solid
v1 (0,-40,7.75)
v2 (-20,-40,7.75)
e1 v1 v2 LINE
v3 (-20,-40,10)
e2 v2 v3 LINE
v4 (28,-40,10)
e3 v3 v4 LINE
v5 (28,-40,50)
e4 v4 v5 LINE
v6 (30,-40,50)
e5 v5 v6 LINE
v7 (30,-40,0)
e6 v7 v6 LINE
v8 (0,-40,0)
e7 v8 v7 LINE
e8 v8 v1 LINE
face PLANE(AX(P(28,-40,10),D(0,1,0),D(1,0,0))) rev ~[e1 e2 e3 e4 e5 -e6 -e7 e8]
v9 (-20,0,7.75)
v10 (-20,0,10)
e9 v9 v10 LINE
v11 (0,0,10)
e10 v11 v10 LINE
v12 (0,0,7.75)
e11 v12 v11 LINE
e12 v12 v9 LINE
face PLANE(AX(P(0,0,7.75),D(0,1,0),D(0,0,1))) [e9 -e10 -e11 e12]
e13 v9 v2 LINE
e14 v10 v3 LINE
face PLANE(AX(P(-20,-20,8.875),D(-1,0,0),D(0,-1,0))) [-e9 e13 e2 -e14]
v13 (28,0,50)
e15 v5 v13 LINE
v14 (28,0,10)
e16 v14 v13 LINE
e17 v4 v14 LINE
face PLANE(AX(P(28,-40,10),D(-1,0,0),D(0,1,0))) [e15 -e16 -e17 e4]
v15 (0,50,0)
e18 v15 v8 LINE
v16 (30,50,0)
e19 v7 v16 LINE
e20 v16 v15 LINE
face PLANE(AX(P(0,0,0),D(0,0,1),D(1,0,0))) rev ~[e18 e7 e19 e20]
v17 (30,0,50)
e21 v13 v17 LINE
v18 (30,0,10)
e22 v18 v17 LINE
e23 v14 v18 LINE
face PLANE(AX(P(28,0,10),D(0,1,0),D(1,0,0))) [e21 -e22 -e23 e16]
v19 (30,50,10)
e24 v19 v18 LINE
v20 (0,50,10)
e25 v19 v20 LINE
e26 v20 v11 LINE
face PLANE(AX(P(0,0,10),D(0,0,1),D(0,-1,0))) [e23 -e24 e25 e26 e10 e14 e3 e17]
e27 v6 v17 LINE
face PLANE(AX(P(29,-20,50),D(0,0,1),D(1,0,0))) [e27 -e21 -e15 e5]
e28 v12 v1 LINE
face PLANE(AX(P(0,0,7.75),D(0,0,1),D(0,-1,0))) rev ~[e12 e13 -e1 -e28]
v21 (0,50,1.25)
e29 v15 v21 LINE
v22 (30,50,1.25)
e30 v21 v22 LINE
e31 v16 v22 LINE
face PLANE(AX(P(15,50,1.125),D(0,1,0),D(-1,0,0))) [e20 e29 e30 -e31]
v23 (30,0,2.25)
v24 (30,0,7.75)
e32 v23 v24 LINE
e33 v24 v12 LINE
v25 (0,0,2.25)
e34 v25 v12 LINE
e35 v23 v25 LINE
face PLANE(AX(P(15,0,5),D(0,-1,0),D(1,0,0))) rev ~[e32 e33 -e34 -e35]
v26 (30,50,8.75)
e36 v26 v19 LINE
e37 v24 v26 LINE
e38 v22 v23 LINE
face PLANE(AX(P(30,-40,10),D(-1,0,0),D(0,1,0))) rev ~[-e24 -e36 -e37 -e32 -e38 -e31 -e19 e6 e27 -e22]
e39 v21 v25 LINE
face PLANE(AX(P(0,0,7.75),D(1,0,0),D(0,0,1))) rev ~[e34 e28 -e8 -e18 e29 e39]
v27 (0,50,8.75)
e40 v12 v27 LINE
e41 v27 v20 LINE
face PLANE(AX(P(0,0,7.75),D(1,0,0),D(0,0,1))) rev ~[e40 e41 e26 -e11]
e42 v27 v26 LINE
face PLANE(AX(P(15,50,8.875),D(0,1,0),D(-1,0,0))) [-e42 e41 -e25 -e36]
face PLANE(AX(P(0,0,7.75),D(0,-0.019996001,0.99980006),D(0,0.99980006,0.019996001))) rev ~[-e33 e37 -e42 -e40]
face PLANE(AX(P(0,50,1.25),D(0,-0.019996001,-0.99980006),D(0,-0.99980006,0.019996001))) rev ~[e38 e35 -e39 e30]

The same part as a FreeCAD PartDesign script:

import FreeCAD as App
import Part
import Sketcher
from FreeCAD import Vector


def add_polygon(sketch, points):
    """Adds a closed chain of lines whose ends are joined by coincident constraints."""
    first, n = sketch.GeometryCount, len(points)
    for a, b in zip(points, points[1:] + points[:1]):
        sketch.addGeometry(Part.LineSegment(App.Vector(*a, 0), App.Vector(*b, 0)), False)
    for i in range(n):
        sketch.addConstraint(Sketcher.Constraint("Coincident", first + i, 2, first + (i + 1) % n, 1))

doc = App.newDocument("Part")
params = doc.addObject("Spreadsheet::Sheet", "Params")
for row, (alias, value) in enumerate([
    ("sketch1_width", "30 mm"),
    ("sketch1_height", "10 mm"),
    ("pad1_length", "40 mm"),
    ("sketch2_width", "30 mm"),
    ("sketch2_height", "2.25 mm"),
    ("pad2_length", "50 mm"),
    ("sketch3_width", "50 mm"),
    ("sketch3_height", "1 mm"),
    ("sketch4_width", "40 mm"),
    ("sketch4_height", "2.25 mm"),
    ("pad3_length", "20 mm"),
    ("sketch5_width", "2 mm"),
    ("sketch5_height", "40 mm"),
    ("pad4_length", "40 mm"),
], start=1):
    params.set(f"A{row}", alias)
    params.set(f"B{row}", "=" + value)
    params.setAlias(f"B{row}", alias)

body = doc.addObject("PartDesign::Body", "Body")

# Sketch on XZ plane
sketch1 = body.newObject("Sketcher::SketchObject", "Sketch")
sketch1.AttachmentSupport = (doc.getObject("XZ_Plane"), [""])
sketch1.MapMode = "FlatFace"
add_polygon(sketch1, [(0, 10), (0, 0), (30, 0), (30, 10)])  # lines 0-3
sketch1.addConstraint([
    Sketcher.Constraint("Vertical", 0),
    Sketcher.Constraint("Horizontal", 1),
    Sketcher.Constraint("Vertical", 2),
    Sketcher.Constraint("Horizontal", 3),
    Sketcher.Constraint("Coincident", 0, 2, -1, 1),
    Sketcher.Constraint("DistanceX", 1, 1, 1, 2, 30.0),
    Sketcher.Constraint("DistanceY", 0, 2, 0, 1, 10.0),
])
sketch1.setExpression("Constraints[9]", "Params.sketch1_width")
sketch1.setExpression("Constraints[10]", "Params.sketch1_height")
pad1 = body.newObject("PartDesign::Pad", "Pad")
pad1.Profile = sketch1
pad1.setExpression("Length", "Params.pad1_length")

# Sketch on XZ plane
sketch2 = body.newObject("Sketcher::SketchObject", "Sketch001")
sketch2.AttachmentSupport = (doc.getObject("XZ_Plane"), [""])
sketch2.MapMode = "FlatFace"
add_polygon(sketch2, [(30, 10), (30, 7.75), (0, 7.75), (0, 10)])  # lines 0-3
add_polygon(sketch2, [(30, 2.25), (30, 0), (0, 0), (0, 2.25)])  # lines 4-7
sketch2.addConstraint([
    Sketcher.Constraint("Vertical", 0),
    Sketcher.Constraint("Horizontal", 1),
    Sketcher.Constraint("Vertical", 2),
    Sketcher.Constraint("Horizontal", 3),
    Sketcher.Constraint("Vertical", 4),
    Sketcher.Constraint("Horizontal", 5),
    Sketcher.Constraint("Vertical", 6),
    Sketcher.Constraint("Horizontal", 7),
    Sketcher.Constraint("Coincident", 5, 2, -1, 1),
    Sketcher.Constraint("PointOnObject", 1, 2, -2),
    Sketcher.Constraint("Vertical", 3, 2, 4, 2),
    Sketcher.Constraint("Equal", 2, 4),
    Sketcher.Constraint("DistanceX", 1, 2, 1, 1, 30.0),
    Sketcher.Constraint("DistanceY", -1, 1, 2, 2, 10.0),
    Sketcher.Constraint("DistanceY", 0, 2, 0, 1, 2.25),
])
sketch2.setExpression("Constraints[20]", "Params.sketch2_width")
sketch2.setExpression("Constraints[22]", "Params.sketch2_height")
pad2 = body.newObject("PartDesign::Pad", "Pad001")
pad2.Profile = sketch2
pad2.setExpression("Length", "Params.pad2_length")
pad2.Reversed = True

# Sketch on YZ plane
sketch3 = body.newObject("Sketcher::SketchObject", "Sketch002")
sketch3.AttachmentSupport = (doc.getObject("YZ_Plane"), [""])
sketch3.MapMode = "FlatFace"
add_polygon(sketch3, [(50, 7.75), (0, 7.75), (50, 8.75)])  # lines 0-2
add_polygon(sketch3, [(50, 1.25), (0, 2.25), (50, 2.25)])  # lines 3-5
sketch3.addConstraint([
    Sketcher.Constraint("Horizontal", 0),
    Sketcher.Constraint("Vertical", 2),
    Sketcher.Constraint("Horizontal", 4),
    Sketcher.Constraint("Vertical", 5),
    Sketcher.Constraint("PointOnObject", 0, 2, -2),
    Sketcher.Constraint("PointOnObject", 3, 2, -2),
    Sketcher.Constraint("Vertical", 2, 2, 4, 2),
    Sketcher.Constraint("Equal", 2, 5),
    Sketcher.Constraint("DistanceX", 0, 2, 0, 1, 50.0),
    Sketcher.Constraint("DistanceY", 2, 2, 2, 1, 1.0),
    Sketcher.Constraint("DistanceY", 3, 2, 0, 2, 5.5),
    Sketcher.Constraint("DistanceY", -1, 1, 0, 2, 7.75),
])
sketch3.setExpression("Constraints[14]", "Params.sketch3_width")
sketch3.setExpression("Constraints[15]", "Params.sketch3_height")
pocket1 = body.newObject("PartDesign::Pocket", "Pocket")
pocket1.Profile = sketch3
pocket1.Type = "ThroughAll"
pocket1.Reversed = True

# Sketch on YZ plane
sketch4 = body.newObject("Sketcher::SketchObject", "Sketch003")
sketch4.AttachmentSupport = (doc.getObject("YZ_Plane"), [""])
sketch4.MapMode = "FlatFace"
add_polygon(sketch4, [(0, 10), (0, 7.75), (-40, 7.75), (-40, 10)])  # lines 0-3
sketch4.addConstraint([
    Sketcher.Constraint("Vertical", 0),
    Sketcher.Constraint("Horizontal", 1),
    Sketcher.Constraint("Vertical", 2),
    Sketcher.Constraint("Horizontal", 3),
    Sketcher.Constraint("PointOnObject", 0, 2, -2),
    Sketcher.Constraint("DistanceX", 1, 2, 1, 1, 40.0),
    Sketcher.Constraint("DistanceY", -1, 1, 2, 2, 10.0),
    Sketcher.Constraint("DistanceY", 0, 2, 0, 1, 2.25),
])
sketch4.setExpression("Constraints[9]", "Params.sketch4_width")
sketch4.setExpression("Constraints[11]", "Params.sketch4_height")
pad3 = body.newObject("PartDesign::Pad", "Pad002")
pad3.Profile = sketch4
pad3.setExpression("Length", "Params.pad3_length")
pad3.Reversed = True

# Sketch on XY plane
sketch5 = body.newObject("Sketcher::SketchObject", "Sketch004")
sketch5.AttachmentSupport = (doc.getObject("XY_Plane"), [""])
sketch5.MapMode = "FlatFace"
sketch5.AttachmentOffset = App.Placement(Vector(0, 0, 10), App.Rotation())
add_polygon(sketch5, [(28, 0), (28, -40), (30, -40), (30, 0)])  # lines 0-3
sketch5.addConstraint([
    Sketcher.Constraint("Vertical", 0),
    Sketcher.Constraint("Horizontal", 1),
    Sketcher.Constraint("Vertical", 2),
    Sketcher.Constraint("Horizontal", 3),
    Sketcher.Constraint("PointOnObject", 2, 2, -1),
    Sketcher.Constraint("DistanceX", 1, 1, 1, 2, 2.0),
    Sketcher.Constraint("DistanceY", 0, 2, 0, 1, 40.0),
    Sketcher.Constraint("DistanceX", -1, 1, 0, 2, 28.0),
])
sketch5.setExpression("Constraints[9]", "Params.sketch5_width")
sketch5.setExpression("Constraints[10]", "Params.sketch5_height")
pad4 = body.newObject("PartDesign::Pad", "Pad003")
pad4.Profile = sketch5
pad4.setExpression("Length", "Params.pad4_length")

doc.recompute()
